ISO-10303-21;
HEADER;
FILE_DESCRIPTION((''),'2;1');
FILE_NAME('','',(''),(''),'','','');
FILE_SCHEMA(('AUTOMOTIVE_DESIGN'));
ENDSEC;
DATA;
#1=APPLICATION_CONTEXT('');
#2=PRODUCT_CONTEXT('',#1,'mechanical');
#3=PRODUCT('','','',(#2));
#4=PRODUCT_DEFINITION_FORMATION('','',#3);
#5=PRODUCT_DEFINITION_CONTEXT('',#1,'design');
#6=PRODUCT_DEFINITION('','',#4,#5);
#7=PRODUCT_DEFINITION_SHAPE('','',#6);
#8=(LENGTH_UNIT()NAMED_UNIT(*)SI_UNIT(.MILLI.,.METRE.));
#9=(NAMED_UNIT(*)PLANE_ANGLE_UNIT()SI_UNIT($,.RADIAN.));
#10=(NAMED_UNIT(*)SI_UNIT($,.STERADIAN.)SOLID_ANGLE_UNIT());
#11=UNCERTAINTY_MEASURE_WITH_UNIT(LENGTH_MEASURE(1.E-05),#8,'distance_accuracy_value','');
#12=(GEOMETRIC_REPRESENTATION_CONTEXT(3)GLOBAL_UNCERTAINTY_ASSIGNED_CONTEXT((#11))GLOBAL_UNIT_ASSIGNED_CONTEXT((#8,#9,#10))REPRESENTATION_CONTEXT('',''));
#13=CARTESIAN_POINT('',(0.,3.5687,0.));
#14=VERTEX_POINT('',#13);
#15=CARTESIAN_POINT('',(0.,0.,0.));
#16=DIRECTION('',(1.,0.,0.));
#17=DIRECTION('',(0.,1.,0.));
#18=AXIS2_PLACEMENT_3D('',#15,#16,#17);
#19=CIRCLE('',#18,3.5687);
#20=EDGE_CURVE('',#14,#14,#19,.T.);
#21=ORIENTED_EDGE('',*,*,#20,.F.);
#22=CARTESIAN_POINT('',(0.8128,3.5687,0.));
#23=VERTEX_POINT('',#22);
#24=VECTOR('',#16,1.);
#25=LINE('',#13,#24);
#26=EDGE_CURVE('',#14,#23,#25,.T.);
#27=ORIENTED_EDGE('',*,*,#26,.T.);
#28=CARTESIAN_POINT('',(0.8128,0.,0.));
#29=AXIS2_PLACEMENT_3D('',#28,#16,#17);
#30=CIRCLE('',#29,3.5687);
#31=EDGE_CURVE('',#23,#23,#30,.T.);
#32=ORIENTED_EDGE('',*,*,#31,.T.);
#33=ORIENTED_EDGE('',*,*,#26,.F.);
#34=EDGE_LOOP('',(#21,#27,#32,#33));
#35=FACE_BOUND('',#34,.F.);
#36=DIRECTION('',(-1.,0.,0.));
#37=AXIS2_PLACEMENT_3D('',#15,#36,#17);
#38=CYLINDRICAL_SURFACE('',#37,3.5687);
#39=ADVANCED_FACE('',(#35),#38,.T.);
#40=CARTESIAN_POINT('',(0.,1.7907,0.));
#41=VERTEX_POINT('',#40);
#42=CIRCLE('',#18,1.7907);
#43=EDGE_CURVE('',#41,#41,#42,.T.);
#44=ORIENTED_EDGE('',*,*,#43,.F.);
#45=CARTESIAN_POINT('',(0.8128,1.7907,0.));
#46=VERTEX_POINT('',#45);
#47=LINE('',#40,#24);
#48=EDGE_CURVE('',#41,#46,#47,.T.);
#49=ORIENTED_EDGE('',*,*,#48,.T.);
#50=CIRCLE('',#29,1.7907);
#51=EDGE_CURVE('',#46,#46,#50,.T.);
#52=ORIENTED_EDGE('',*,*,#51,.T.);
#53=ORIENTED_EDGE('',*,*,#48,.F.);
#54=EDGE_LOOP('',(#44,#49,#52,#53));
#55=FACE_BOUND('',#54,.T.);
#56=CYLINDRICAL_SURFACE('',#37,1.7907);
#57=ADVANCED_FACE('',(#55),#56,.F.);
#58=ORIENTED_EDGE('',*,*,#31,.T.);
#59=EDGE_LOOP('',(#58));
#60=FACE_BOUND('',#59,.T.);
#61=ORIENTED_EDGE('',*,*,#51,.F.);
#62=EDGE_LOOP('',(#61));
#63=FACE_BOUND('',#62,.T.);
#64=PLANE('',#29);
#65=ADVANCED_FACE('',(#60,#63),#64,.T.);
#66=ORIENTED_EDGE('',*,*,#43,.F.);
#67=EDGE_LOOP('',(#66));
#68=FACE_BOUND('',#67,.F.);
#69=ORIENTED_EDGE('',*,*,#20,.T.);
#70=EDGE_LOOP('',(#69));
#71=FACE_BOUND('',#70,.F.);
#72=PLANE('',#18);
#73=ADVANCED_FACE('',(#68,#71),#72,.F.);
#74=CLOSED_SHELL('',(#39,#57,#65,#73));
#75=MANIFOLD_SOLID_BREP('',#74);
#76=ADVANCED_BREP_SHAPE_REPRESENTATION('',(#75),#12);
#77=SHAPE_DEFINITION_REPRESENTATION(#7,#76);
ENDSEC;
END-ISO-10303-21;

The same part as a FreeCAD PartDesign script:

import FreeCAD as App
import Part
import Sketcher

V = App.Vector
Q = App.Units.Quantity

doc = App.newDocument("Part")
body = doc.addObject("PartDesign::Body", "Body")

# Sketch on YZ plane
sketch1 = body.newObject("Sketcher::SketchObject", "Sketch")
sketch1.AttachmentSupport = (doc.getObject("YZ_Plane"), [""])
sketch1.MapMode = "FlatFace"
sketch1.addGeometry(Part.Circle(V(0, 0, 0), V(0, 0, 1), 3.6), False)
sketch1.addGeometry(Part.Circle(V(0, 0, 0), V(0, 0, 1), 1.8), False)
sketch1.addConstraint(Sketcher.Constraint("Coincident", 0, 3, -1, 1))
sketch1.addConstraint(Sketcher.Constraint("Coincident", 1, 3, -1, 1))
sketch1.addConstraint(Sketcher.Constraint("Diameter", 0, Q("0.281 in")))
sketch1.addConstraint(Sketcher.Constraint("Diameter", 1, Q("0.141 in")))
pad1 = body.newObject("PartDesign::Pad", "Pad")
pad1.Profile = sketch1
pad1.Length = Q("0.032 in")

doc.recompute()
